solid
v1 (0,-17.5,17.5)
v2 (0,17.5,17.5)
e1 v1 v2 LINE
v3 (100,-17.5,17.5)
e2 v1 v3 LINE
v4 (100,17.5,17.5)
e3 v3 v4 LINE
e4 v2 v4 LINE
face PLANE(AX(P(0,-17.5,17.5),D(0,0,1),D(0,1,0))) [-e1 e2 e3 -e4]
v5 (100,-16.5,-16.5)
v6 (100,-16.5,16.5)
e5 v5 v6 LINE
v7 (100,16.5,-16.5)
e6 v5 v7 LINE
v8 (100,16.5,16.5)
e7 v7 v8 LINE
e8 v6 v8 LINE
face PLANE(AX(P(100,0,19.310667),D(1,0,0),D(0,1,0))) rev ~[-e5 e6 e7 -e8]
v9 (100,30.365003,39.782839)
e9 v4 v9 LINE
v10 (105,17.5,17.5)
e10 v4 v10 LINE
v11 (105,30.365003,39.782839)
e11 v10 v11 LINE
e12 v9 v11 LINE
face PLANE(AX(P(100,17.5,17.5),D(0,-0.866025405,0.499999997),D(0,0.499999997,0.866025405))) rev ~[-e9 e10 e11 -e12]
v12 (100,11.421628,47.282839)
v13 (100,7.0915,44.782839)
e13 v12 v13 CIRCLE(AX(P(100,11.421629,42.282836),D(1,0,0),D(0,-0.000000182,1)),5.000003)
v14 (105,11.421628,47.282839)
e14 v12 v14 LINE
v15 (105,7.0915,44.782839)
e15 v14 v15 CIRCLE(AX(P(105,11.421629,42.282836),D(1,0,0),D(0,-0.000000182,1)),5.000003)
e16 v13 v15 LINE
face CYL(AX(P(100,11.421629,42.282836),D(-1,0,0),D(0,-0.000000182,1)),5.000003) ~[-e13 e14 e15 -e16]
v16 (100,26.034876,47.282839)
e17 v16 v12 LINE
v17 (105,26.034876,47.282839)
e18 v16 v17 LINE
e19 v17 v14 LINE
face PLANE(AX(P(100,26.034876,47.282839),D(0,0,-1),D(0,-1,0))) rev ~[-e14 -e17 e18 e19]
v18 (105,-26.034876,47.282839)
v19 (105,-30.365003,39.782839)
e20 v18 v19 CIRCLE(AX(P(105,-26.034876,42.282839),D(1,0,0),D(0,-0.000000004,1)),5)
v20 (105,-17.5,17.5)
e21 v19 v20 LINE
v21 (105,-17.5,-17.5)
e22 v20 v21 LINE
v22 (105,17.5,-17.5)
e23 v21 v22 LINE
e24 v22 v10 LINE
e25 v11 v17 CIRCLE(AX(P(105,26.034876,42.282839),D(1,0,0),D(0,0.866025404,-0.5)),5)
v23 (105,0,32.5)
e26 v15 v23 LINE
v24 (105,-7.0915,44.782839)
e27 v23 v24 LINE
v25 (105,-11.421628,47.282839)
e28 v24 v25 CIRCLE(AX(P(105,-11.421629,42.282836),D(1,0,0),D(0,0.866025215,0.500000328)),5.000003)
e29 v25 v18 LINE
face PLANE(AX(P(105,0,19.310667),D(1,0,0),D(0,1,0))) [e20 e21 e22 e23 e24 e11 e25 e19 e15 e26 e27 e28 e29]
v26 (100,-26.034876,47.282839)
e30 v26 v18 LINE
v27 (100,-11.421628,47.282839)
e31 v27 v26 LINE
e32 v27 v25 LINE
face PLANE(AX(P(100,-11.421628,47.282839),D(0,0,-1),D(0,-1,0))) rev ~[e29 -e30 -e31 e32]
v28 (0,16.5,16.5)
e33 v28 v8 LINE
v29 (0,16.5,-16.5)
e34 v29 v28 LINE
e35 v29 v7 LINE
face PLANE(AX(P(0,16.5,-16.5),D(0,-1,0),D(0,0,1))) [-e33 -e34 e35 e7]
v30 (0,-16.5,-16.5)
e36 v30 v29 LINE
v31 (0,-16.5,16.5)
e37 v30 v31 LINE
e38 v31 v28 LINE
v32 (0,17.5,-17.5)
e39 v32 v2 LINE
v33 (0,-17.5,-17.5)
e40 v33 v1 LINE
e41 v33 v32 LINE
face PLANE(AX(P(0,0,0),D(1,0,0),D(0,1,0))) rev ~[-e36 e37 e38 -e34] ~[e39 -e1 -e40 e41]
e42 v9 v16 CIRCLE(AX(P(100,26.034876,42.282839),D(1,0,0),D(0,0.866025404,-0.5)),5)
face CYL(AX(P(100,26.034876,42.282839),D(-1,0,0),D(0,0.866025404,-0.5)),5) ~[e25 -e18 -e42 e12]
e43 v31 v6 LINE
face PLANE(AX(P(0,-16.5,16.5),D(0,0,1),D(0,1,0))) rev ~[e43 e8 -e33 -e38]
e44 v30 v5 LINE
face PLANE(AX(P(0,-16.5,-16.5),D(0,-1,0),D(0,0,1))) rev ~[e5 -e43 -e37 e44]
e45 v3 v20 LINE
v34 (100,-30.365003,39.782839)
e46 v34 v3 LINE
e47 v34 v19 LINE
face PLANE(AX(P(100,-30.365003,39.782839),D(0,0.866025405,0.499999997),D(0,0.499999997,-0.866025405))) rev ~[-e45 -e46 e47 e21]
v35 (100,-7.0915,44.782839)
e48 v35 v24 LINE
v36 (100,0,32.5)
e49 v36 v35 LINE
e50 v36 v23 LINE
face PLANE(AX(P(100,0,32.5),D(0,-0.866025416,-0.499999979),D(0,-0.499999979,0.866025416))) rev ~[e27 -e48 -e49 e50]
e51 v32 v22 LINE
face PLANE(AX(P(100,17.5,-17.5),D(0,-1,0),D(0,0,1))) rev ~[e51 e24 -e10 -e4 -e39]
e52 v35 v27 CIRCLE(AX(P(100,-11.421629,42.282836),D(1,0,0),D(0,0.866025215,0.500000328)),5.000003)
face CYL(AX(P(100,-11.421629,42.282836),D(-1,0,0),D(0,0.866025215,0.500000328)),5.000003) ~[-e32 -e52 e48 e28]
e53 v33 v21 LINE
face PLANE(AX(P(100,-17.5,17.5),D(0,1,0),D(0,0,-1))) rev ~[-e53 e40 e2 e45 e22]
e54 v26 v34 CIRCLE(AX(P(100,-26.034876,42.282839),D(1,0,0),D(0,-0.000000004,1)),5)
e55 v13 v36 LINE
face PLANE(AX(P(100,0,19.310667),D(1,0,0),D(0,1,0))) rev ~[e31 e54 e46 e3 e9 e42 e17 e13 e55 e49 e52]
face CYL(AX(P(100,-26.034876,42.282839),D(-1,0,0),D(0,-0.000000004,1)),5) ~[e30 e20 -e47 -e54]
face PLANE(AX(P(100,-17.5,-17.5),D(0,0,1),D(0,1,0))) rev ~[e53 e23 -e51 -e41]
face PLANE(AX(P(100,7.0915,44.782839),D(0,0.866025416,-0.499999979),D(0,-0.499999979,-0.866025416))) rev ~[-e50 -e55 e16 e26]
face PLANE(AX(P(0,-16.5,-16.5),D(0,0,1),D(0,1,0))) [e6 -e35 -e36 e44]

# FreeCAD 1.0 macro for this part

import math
import FreeCAD as App
import Part
import Sketcher

V = App.Vector
Q = App.Units.Quantity

doc = App.newDocument("Part")
body = doc.addObject("PartDesign::Body", "Body")

# Sketch on YZ plane
sketch1 = body.newObject("Sketcher::SketchObject", "Sketch")
sketch1.AttachmentSupport = (doc.getObject("YZ_Plane"), [""])
sketch1.MapMode = "FlatFace"
sketch1.addGeometry(Part.LineSegment(V(-17.5, 17.5, 0), V(-17.5, -17.5, 0)), False)
sketch1.addGeometry(Part.LineSegment(V(-17.5, -17.5, 0), V(17.5, -17.5, 0)), False)
sketch1.addGeometry(Part.LineSegment(V(17.5, -17.5, 0), V(17.5, 17.5, 0)), False)
sketch1.addGeometry(Part.LineSegment(V(17.5, 17.5, 0), V(-17.5, 17.5, 0)), False)
sketch1.addGeometry(Part.LineSegment(V(16.5, -16.5, 0), V(-16.5, -16.5, 0)), False)
sketch1.addGeometry(Part.LineSegment(V(-16.5, -16.5, 0), V(-16.5, 16.5, 0)), False)
sketch1.addGeometry(Part.LineSegment(V(-16.5, 16.5, 0), V(16.5, 16.5, 0)), False)
sketch1.addGeometry(Part.LineSegment(V(16.5, 16.5, 0), V(16.5, -16.5, 0)), False)
sketch1.addConstraint(Sketcher.Constraint("Coincident", 0, 2, 1, 1))
sketch1.addConstraint(Sketcher.Constraint("Coincident", 1, 2, 2, 1))
sketch1.addConstraint(Sketcher.Constraint("Coincident", 2, 2, 3, 1))
sketch1.addConstraint(Sketcher.Constraint("Coincident", 3, 2, 0, 1))
sketch1.addConstraint(Sketcher.Constraint("Coincident", 4, 2, 5, 1))
sketch1.addConstraint(Sketcher.Constraint("Coincident", 5, 2, 6, 1))
sketch1.addConstraint(Sketcher.Constraint("Coincident", 6, 2, 7, 1))
sketch1.addConstraint(Sketcher.Constraint("Coincident", 7, 2, 4, 1))
sketch1.addConstraint(Sketcher.Constraint("Vertical", 0))
sketch1.addConstraint(Sketcher.Constraint("Horizontal", 1))
sketch1.addConstraint(Sketcher.Constraint("Vertical", 2))
sketch1.addConstraint(Sketcher.Constraint("Horizontal", 3))
sketch1.addConstraint(Sketcher.Constraint("Horizontal", 4))
sketch1.addConstraint(Sketcher.Constraint("Vertical", 5))
sketch1.addConstraint(Sketcher.Constraint("Horizontal", 6))
sketch1.addConstraint(Sketcher.Constraint("Vertical", 7))
sketch1.addConstraint(Sketcher.Constraint("Symmetric", 0, 2, 2, 2, -1, 1))
sketch1.addConstraint(Sketcher.Constraint("Symmetric", 4, 2, 6, 2, -1, 1))
sketch1.addConstraint(Sketcher.Constraint("Equal", 3, 0))
sketch1.addConstraint(Sketcher.Constraint("Equal", 6, 5))
sketch1.addConstraint(Sketcher.Constraint("DistanceX", 1, 1, 1, 2, 35.0))
sketch1.addConstraint(Sketcher.Constraint("DistanceX", 4, 2, 4, 1, 33.0))
pad1 = body.newObject("PartDesign::Pad", "Pad")
pad1.Profile = sketch1
pad1.Length = 100

# Sketch on YZ plane
sketch2 = body.newObject("Sketcher::SketchObject", "Sketch001")
sketch2.AttachmentSupport = (doc.getObject("YZ_Plane"), [""])
sketch2.MapMode = "FlatFace"
sketch2.AttachmentOffset = App.Placement(V(0, 0, 100), App.Rotation())
sketch2.addGeometry(Part.LineSegment(V(-17.5, 17.5, 0), V(-17.5, -17.5, 0)), False)
sketch2.addGeometry(Part.LineSegment(V(-17.5, -17.5, 0), V(17.5, -17.5, 0)), False)
sketch2.addGeometry(Part.LineSegment(V(17.5, -17.5, 0), V(17.5, 17.5, 0)), False)
sketch2.addGeometry(Part.LineSegment(V(17.5, 17.5, 0), V(30.365003, 39.782839, 0)), False)
sketch2.addGeometry(Part.ArcOfCircle(Part.Circle(V(26.034876, 42.282839, 0), V(0, 0, 1), 5), math.radians(-30), math.radians(90)), False)
sketch2.addGeometry(Part.LineSegment(V(26.034876, 47.282839, 0), V(11.421628, 47.282839, 0)), False)
sketch2.addGeometry(Part.ArcOfCircle(Part.Circle(V(11.421629, 42.282836, 0), V(0, 0, 1), 5.000003), math.radians(90.00001), math.radians(149.999978)), False)
sketch2.addGeometry(Part.LineSegment(V(7.0915, 44.782839, 0), V(0, 32.5, 0)), False)
sketch2.addGeometry(Part.LineSegment(V(0, 32.5, 0), V(-7.0915, 44.782839, 0)), False)
sketch2.addGeometry(Part.ArcOfCircle(Part.Circle(V(-11.421629, 42.282836, 0), V(0, 0, 1), 5.000003), math.radians(30.000022), math.radians(89.99999)), False)
sketch2.addGeometry(Part.LineSegment(V(-11.421628, 47.282839, 0), V(-26.034876, 47.282839, 0)), False)
sketch2.addGeometry(Part.ArcOfCircle(Part.Circle(V(-26.034876, 42.282839, 0), V(0, 0, 1), 5), math.radians(90), math.radians(210)), False)
sketch2.addGeometry(Part.LineSegment(V(-30.365003, 39.782839, 0), V(-17.5, 17.5, 0)), False)
sketch2.addConstraint(Sketcher.Constraint("Coincident", 0, 2, 1, 1))
sketch2.addConstraint(Sketcher.Constraint("Coincident", 1, 2, 2, 1))
sketch2.addConstraint(Sketcher.Constraint("Coincident", 2, 2, 3, 1))
sketch2.addConstraint(Sketcher.Constraint("Tangent", 3, 2, 4, 1))
sketch2.addConstraint(Sketcher.Constraint("Tangent", 4, 2, 5, 1))
sketch2.addConstraint(Sketcher.Constraint("Tangent", 5, 2, 6, 1))
sketch2.addConstraint(Sketcher.Constraint("Tangent", 6, 2, 7, 1))
sketch2.addConstraint(Sketcher.Constraint("Coincident", 7, 2, 8, 1))
sketch2.addConstraint(Sketcher.Constraint("Tangent", 8, 2, 9, 1))
sketch2.addConstraint(Sketcher.Constraint("Tangent", 9, 2, 10, 1))
sketch2.addConstraint(Sketcher.Constraint("Tangent", 10, 2, 11, 1))
sketch2.addConstraint(Sketcher.Constraint("Tangent", 11, 2, 12, 1))
sketch2.addConstraint(Sketcher.Constraint("Coincident", 12, 2, 0, 1))
sketch2.addConstraint(Sketcher.Constraint("Vertical", 0))
sketch2.addConstraint(Sketcher.Constraint("Horizontal", 1))
sketch2.addConstraint(Sketcher.Constraint("Vertical", 2))
sketch2.addConstraint(Sketcher.Constraint("Horizontal", 5))
sketch2.addConstraint(Sketcher.Constraint("Horizontal", 10))
sketch2.addConstraint(Sketcher.Constraint("Equal", 6, 9))
sketch2.addConstraint(Sketcher.Constraint("Equal", 4, 11))
sketch2.addConstraint(Sketcher.Constraint("Symmetric", 0, 2, 2, 2, -1, 1))
sketch2.addConstraint(Sketcher.Constraint("Symmetric", 6, 3, 9, 3, -2))
sketch2.addConstraint(Sketcher.Constraint("Symmetric", 3, 2, 11, 2, -2))
sketch2.addConstraint(Sketcher.Constraint("PointOnObject", 7, 2, -2))
sketch2.addConstraint(Sketcher.Constraint("Parallel", 3, 7))
sketch2.addConstraint(Sketcher.Constraint("Equal", 1, 0))
sketch2.addConstraint(Sketcher.Constraint("Radius", 4, 5.0))
sketch2.addConstraint(Sketcher.Constraint("DistanceX", 1, 1, 1, 2, 35.0))
sketch2.addConstraint(Sketcher.Constraint("Angle", 3, Q("60 deg")))
sketch2.addConstraint(Sketcher.Constraint("DistanceY", 2, 2, 7, 2, 15.0))
sketch2.addConstraint(Sketcher.Constraint("DistanceY", 11, 2, 8, 2, 5.0))
sketch2.addConstraint(Sketcher.Constraint("Distance", 7, 14.183001))
pad2 = body.newObject("PartDesign::Pad", "Pad001")
pad2.Profile = sketch2
pad2.Length = 5

doc.recompute()
